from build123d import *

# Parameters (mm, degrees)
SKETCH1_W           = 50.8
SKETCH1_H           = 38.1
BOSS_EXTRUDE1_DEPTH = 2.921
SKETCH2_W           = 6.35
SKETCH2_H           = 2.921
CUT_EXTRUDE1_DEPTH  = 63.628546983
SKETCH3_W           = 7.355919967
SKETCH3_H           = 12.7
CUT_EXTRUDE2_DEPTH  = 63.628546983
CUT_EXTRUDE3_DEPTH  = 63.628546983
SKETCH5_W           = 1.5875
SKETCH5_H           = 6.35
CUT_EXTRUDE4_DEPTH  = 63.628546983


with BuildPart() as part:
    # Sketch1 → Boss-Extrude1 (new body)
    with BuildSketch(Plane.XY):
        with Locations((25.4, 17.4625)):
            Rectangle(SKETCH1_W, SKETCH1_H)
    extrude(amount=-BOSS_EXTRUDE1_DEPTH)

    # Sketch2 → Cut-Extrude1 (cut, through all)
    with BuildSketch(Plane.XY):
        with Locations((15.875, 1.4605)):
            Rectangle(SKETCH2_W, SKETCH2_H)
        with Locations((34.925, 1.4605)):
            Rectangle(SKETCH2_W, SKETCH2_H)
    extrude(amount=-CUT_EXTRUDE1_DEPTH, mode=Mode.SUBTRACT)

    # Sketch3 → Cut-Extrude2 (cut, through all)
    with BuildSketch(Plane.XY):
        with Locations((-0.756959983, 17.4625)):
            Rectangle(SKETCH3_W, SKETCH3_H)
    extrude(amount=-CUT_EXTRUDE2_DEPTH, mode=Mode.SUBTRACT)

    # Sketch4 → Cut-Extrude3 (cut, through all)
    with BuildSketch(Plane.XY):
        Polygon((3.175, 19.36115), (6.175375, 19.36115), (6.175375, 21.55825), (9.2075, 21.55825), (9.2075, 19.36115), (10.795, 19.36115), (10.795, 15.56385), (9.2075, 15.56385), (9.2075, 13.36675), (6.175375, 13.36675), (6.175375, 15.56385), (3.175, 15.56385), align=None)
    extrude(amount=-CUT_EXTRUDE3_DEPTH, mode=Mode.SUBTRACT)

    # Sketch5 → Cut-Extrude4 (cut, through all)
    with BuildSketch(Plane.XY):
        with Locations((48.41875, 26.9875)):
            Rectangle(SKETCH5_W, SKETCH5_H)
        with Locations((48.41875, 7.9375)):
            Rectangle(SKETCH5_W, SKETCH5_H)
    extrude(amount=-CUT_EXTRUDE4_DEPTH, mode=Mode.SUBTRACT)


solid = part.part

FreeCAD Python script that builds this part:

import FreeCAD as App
import Part
import Sketcher
from FreeCAD import Vector
Q = App.Units.Quantity

doc = App.newDocument("Part")
body = doc.addObject("PartDesign::Body", "Body")

sketch1 = body.newObject("Sketcher::SketchObject", "Sketch")
sketch1.AttachmentSupport = (doc.getObject("XY_Plane"), [""])
sketch1.MapMode = "FlatFace"
sketch1.addGeometry([
    Part.LineSegment(Vector(0, 37, 0), Vector(0, -2, 0)),
    Part.LineSegment(Vector(0, -2, 0), Vector(51, -2, 0)),
    Part.LineSegment(Vector(51, -2, 0), Vector(51, 37, 0)),
    Part.LineSegment(Vector(51, 37, 0), Vector(0, 37, 0)),
], False)
sketch1.addConstraint([
    Sketcher.Constraint("Coincident", 0, 2, 1, 1),
    Sketcher.Constraint("Coincident", 1, 2, 2, 1),
    Sketcher.Constraint("Coincident", 2, 2, 3, 1),
    Sketcher.Constraint("Coincident", 3, 2, 0, 1),
    Sketcher.Constraint("Vertical", 0),
    Sketcher.Constraint("Horizontal", 1),
    Sketcher.Constraint("Vertical", 2),
    Sketcher.Constraint("Horizontal", 3),
    Sketcher.Constraint("PointOnObject", 0, 2, -2),
    Sketcher.Constraint("DistanceX", 1, 1, 1, 2, Q("2 in")),
    Sketcher.Constraint("DistanceY", 0, 2, 0, 1, Q("1.5 in")),
    Sketcher.Constraint("DistanceY", 0, 2, -1, 1, Q("0.0625 in")),
])
pad1 = body.newObject("PartDesign::Pad", "Pad")
pad1.Profile = sketch1
pad1.Length = Q("0.115 in")
pad1.Reversed = True

sketch2 = body.newObject("Sketcher::SketchObject", "Sketch001")
sketch2.AttachmentSupport = (doc.getObject("XY_Plane"), [""])
sketch2.MapMode = "FlatFace"
sketch2.addGeometry([
    Part.LineSegment(Vector(12.7, 2.9, 0), Vector(12.7, 0, 0)),
    Part.LineSegment(Vector(12.7, 0, 0), Vector(19.1, 0, 0)),
    Part.LineSegment(Vector(19.1, 0, 0), Vector(19.1, 2.9, 0)),
    Part.LineSegment(Vector(19.1, 2.9, 0), Vector(12.7, 2.9, 0)),
    Part.LineSegment(Vector(31.8, 2.9, 0), Vector(31.8, 0, 0)),
    Part.LineSegment(Vector(31.8, 0, 0), Vector(38.1, 0, 0)),
    Part.LineSegment(Vector(38.1, 0, 0), Vector(38.1, 2.9, 0)),
    Part.LineSegment(Vector(38.1, 2.9, 0), Vector(31.8, 2.9, 0)),
], False)
sketch2.addConstraint([
    Sketcher.Constraint("Coincident", 0, 2, 1, 1),
    Sketcher.Constraint("Coincident", 1, 2, 2, 1),
    Sketcher.Constraint("Coincident", 2, 2, 3, 1),
    Sketcher.Constraint("Coincident", 3, 2, 0, 1),
    Sketcher.Constraint("Coincident", 4, 2, 5, 1),
    Sketcher.Constraint("Coincident", 5, 2, 6, 1),
    Sketcher.Constraint("Coincident", 6, 2, 7, 1),
    Sketcher.Constraint("Coincident", 7, 2, 4, 1),
    Sketcher.Constraint("Vertical", 0),
    Sketcher.Constraint("Horizontal", 1),
    Sketcher.Constraint("Vertical", 2),
    Sketcher.Constraint("Horizontal", 3),
    Sketcher.Constraint("Vertical", 4),
    Sketcher.Constraint("Horizontal", 5),
    Sketcher.Constraint("Vertical", 6),
    Sketcher.Constraint("Horizontal", 7),
    Sketcher.Constraint("PointOnObject", 0, 2, -1),
    Sketcher.Constraint("PointOnObject", 4, 2, -1),
    Sketcher.Constraint("Horizontal", 3, 2, 6, 2),
    Sketcher.Constraint("Equal", 3, 5),
    Sketcher.Constraint("DistanceX", 0, 2, 5, 2, Q("1 in")),
    Sketcher.Constraint("DistanceX", 1, 1, 1, 2, Q("0.25 in")),
    Sketcher.Constraint("DistanceX", -1, 1, 0, 2, Q("0.5 in")),
    Sketcher.Constraint("DistanceY", 0, 2, 0, 1, Q("0.115 in")),
])
pocket1 = body.newObject("PartDesign::Pocket", "Pocket")
pocket1.Profile = sketch2
pocket1.Type = "ThroughAll"

sketch3 = body.newObject("Sketcher::SketchObject", "Sketch002")
sketch3.AttachmentSupport = (doc.getObject("XY_Plane"), [""])
sketch3.MapMode = "FlatFace"
sketch3.addGeometry([
    Part.LineSegment(Vector(-4, 24, 0), Vector(-4, 11, 0)),
    Part.LineSegment(Vector(-4, 11, 0), Vector(3, 11, 0)),
    Part.LineSegment(Vector(3, 11, 0), Vector(3, 24, 0)),
    Part.LineSegment(Vector(3, 24, 0), Vector(-4, 24, 0)),
], False)
sketch3.addConstraint([
    Sketcher.Constraint("Coincident", 0, 2, 1, 1),
    Sketcher.Constraint("Coincident", 1, 2, 2, 1),
    Sketcher.Constraint("Coincident", 2, 2, 3, 1),
    Sketcher.Constraint("Coincident", 3, 2, 0, 1),
    Sketcher.Constraint("Vertical", 0),
    Sketcher.Constraint("Horizontal", 1),
    Sketcher.Constraint("Vertical", 2),
    Sketcher.Constraint("Horizontal", 3),
    Sketcher.Constraint("DistanceY", 0, 2, 0, 1, Q("0.5 in")),
    Sketcher.Constraint("DistanceY", -1, 1, 0, 2, Q("0.4375 in")),
    Sketcher.Constraint("DistanceX", -1, 1, 1, 2, Q("0.115 in")),
    Sketcher.Constraint("DistanceX", 1, 1, 1, 2, Q("7.35592 mm")),
])
pocket2 = body.newObject("PartDesign::Pocket", "Pocket001")
pocket2.Profile = sketch3
pocket2.Type = "ThroughAll"

sketch4 = body.newObject("Sketcher::SketchObject", "Sketch003")
sketch4.AttachmentSupport = (doc.getObject("XY_Plane"), [""])
sketch4.MapMode = "FlatFace"
sketch4.addGeometry([
    Part.LineSegment(Vector(6.2, 19.4, 0), Vector(3.2, 19.4, 0)),
    Part.LineSegment(Vector(3.2, 19.4, 0), Vector(3.2, 15.6, 0)),
    Part.LineSegment(Vector(3.2, 15.6, 0), Vector(6.2, 15.6, 0)),
    Part.LineSegment(Vector(6.2, 15.6, 0), Vector(6.2, 13.4, 0)),
    Part.LineSegment(Vector(6.2, 13.4, 0), Vector(9.2, 13.4, 0)),
    Part.LineSegment(Vector(9.2, 13.4, 0), Vector(9.2, 15.6, 0)),
    Part.LineSegment(Vector(9.2, 15.6, 0), Vector(10.8, 15.6, 0)),
    Part.LineSegment(Vector(10.8, 15.6, 0), Vector(10.8, 19.4, 0)),
    Part.LineSegment(Vector(10.8, 19.4, 0), Vector(9.2, 19.4, 0)),
    Part.LineSegment(Vector(9.2, 19.4, 0), Vector(9.2, 21.6, 0)),
    Part.LineSegment(Vector(9.2, 21.6, 0), Vector(6.2, 21.6, 0)),
    Part.LineSegment(Vector(6.2, 21.6, 0), Vector(6.2, 19.4, 0)),
], False)
sketch4.addConstraint([
    Sketcher.Constraint("Coincident", 0, 2, 1, 1),
    Sketcher.Constraint("Coincident", 1, 2, 2, 1),
    Sketcher.Constraint("Coincident", 2, 2, 3, 1),
    Sketcher.Constraint("Coincident", 3, 2, 4, 1),
    Sketcher.Constraint("Coincident", 4, 2, 5, 1),
    Sketcher.Constraint("Coincident", 5, 2, 6, 1),
    Sketcher.Constraint("Coincident", 6, 2, 7, 1),
    Sketcher.Constraint("Coincident", 7, 2, 8, 1),
    Sketcher.Constraint("Coincident", 8, 2, 9, 1),
    Sketcher.Constraint("Coincident", 9, 2, 10, 1),
    Sketcher.Constraint("Coincident", 10, 2, 11, 1),
    Sketcher.Constraint("Coincident", 11, 2, 0, 1),
    Sketcher.Constraint("Horizontal", 0),
    Sketcher.Constraint("Vertical", 1),
    Sketcher.Constraint("Horizontal", 2),
    Sketcher.Constraint("Vertical", 3),
    Sketcher.Constraint("Horizontal", 4),
    Sketcher.Constraint("Vertical", 5),
    Sketcher.Constraint("Horizontal", 6),
    Sketcher.Constraint("Vertical", 7),
    Sketcher.Constraint("Horizontal", 8),
    Sketcher.Constraint("Vertical", 9),
    Sketcher.Constraint("Horizontal", 10),
    Sketcher.Constraint("Vertical", 11),
    Sketcher.Constraint("Horizontal", 2, 2, 5, 2),
    Sketcher.Constraint("Horizontal", 0, 2, 7, 2),
    Sketcher.Constraint("Vertical", 5, 2, 8, 2),
    Sketcher.Constraint("Vertical", 3, 2, 10, 2),
    Sketcher.Constraint("Equal", 5, 9),
    Sketcher.Constraint("DistanceX", 1, 2, 6, 2, Q("0.3 in")),
    Sketcher.Constraint("DistanceX", 6, 1, 6, 2, Q("0.0625 in")),
    Sketcher.Constraint("DistanceY", 1, 2, 1, 1, Q("0.1495 in")),
    Sketcher.Constraint("DistanceY", 3, 2, 3, 1, Q("0.0865 in")),
    Sketcher.Constraint("DistanceX", -1, 1, 0, 2, Q("0.125 in")),
    Sketcher.Constraint("DistanceX", 0, 2, 0, 1, Q("3.000375 mm")),
    Sketcher.Constraint("DistanceY", -1, 1, 0, 2, Q("19.36115 mm")),
])
pocket3 = body.newObject("PartDesign::Pocket", "Pocket002")
pocket3.Profile = sketch4
pocket3.Type = "ThroughAll"

sketch5 = body.newObject("Sketcher::SketchObject", "Sketch004")
sketch5.AttachmentSupport = (doc.getObject("XY_Plane"), [""])
sketch5.MapMode = "FlatFace"
sketch5.addGeometry([
    Part.LineSegment(Vector(47.6, 30.2, 0), Vector(47.6, 23.8, 0)),
    Part.LineSegment(Vector(47.6, 23.8, 0), Vector(49.2, 23.8, 0)),
    Part.LineSegment(Vector(49.2, 23.8, 0), Vector(49.2, 30.2, 0)),
    Part.LineSegment(Vector(49.2, 30.2, 0), Vector(47.6, 30.2, 0)),
    Part.LineSegment(Vector(47.6, 11.1, 0), Vector(47.6, 4.8, 0)),
    Part.LineSegment(Vector(47.6, 4.8, 0), Vector(49.2, 4.8, 0)),
    Part.LineSegment(Vector(49.2, 4.8, 0), Vector(49.2, 11.1, 0)),
    Part.LineSegment(Vector(49.2, 11.1, 0), Vector(47.6, 11.1, 0)),
], False)
sketch5.addConstraint([
    Sketcher.Constraint("Coincident", 0, 2, 1, 1),
    Sketcher.Constraint("Coincident", 1, 2, 2, 1),
    Sketcher.Constraint("Coincident", 2, 2, 3, 1),
    Sketcher.Constraint("Coincident", 3, 2, 0, 1),
    Sketcher.Constraint("Coincident", 4, 2, 5, 1),
    Sketcher.Constraint("Coincident", 5, 2, 6, 1),
    Sketcher.Constraint("Coincident", 6, 2, 7, 1),
    Sketcher.Constraint("Coincident", 7, 2, 4, 1),
    Sketcher.Constraint("Vertical", 0),
    Sketcher.Constraint("Horizontal", 1),
    Sketcher.Constraint("Vertical", 2),
    Sketcher.Constraint("Horizontal", 3),
    Sketcher.Constraint("Vertical", 4),
    Sketcher.Constraint("Horizontal", 5),
    Sketcher.Constraint("Vertical", 6),
    Sketcher.Constraint("Horizontal", 7),
    Sketcher.Constraint("Vertical", 3, 2, 4, 2),
    Sketcher.Constraint("Vertical", 2, 2, 5, 2),
    Sketcher.Constraint("Equal", 2, 4),
    Sketcher.Constraint("DistanceY", 4, 2, 3, 2, Q("1 in")),
    Sketcher.Constraint("DistanceY", 0, 2, 0, 1, Q("0.25 in")),
    Sketcher.Constraint("DistanceX", 1, 1, 1, 2, Q("0.0625 in")),
    Sketcher.Constraint("DistanceX", -1, 1, 0, 2, Q("1.875 in")),
    Sketcher.Constraint("DistanceY", -1, 1, 0, 2, Q("0.9375 in")),
])
pocket4 = body.newObject("PartDesign::Pocket", "Pocket003")
pocket4.Profile = sketch5
pocket4.Type = "ThroughAll"

doc.recompute()
